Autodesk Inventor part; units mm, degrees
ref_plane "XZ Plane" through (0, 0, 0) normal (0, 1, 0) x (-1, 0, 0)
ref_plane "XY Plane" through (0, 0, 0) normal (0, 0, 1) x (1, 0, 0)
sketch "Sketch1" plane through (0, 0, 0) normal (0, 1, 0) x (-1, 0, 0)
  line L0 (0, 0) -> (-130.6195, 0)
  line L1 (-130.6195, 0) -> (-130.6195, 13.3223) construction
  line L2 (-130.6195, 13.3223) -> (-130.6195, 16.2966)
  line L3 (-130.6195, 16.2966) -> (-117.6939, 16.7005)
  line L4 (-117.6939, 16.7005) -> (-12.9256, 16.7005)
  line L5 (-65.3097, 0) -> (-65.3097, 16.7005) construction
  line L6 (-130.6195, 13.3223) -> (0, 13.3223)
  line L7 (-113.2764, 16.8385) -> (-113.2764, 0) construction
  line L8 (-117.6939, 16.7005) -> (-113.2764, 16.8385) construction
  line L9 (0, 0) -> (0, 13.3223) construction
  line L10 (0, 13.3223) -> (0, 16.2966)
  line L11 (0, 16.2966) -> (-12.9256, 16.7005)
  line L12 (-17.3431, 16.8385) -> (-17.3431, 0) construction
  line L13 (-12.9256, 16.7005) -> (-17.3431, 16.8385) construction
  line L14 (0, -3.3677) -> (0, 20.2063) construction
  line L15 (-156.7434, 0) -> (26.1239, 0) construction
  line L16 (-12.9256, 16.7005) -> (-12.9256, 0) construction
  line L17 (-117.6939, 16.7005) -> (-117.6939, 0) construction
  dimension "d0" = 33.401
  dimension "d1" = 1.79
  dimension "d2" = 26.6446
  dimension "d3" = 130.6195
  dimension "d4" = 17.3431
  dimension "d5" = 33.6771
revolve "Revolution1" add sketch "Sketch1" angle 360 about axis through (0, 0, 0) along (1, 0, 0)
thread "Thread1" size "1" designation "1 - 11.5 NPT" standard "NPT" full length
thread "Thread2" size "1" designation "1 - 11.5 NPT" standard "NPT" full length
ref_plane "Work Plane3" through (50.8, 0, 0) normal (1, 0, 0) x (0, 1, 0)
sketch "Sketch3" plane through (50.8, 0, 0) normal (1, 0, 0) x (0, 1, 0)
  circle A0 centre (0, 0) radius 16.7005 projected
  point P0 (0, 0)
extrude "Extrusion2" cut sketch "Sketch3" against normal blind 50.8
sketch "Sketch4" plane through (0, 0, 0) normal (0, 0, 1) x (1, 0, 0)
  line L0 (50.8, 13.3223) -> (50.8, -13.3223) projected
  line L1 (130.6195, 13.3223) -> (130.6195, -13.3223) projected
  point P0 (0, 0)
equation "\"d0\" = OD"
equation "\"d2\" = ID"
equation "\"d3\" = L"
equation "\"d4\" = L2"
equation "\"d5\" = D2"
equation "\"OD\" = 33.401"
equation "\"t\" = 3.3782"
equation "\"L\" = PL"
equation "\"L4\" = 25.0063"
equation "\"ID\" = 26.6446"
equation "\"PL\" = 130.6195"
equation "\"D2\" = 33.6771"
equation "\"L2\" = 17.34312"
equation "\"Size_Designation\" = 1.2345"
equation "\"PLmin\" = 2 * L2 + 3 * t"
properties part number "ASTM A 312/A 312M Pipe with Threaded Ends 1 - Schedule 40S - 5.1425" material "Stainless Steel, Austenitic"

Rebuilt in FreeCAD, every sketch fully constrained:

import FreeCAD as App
import Part
import Sketcher
from FreeCAD import Vector
Q = App.Units.Quantity

doc = App.newDocument("Part")
body = doc.addObject("PartDesign::Body", "Body")

# Sketch on XZ plane
sketch1 = doc.addObject("Sketcher::SketchObject", "Sketch")
body.addObject(sketch1)
sketch1.AttachmentSupport = (doc.XZ_Plane, [""])
sketch1.MapMode = "FlatFace"
sketch1.addGeometry([
    Part.LineSegment(Vector(130.6195, 16.2966, 0), Vector(130.6195, 13.3223, 0)),  # 0
    Part.LineSegment(Vector(130.6195, 13.3223, 0), Vector(0, 13.3223, 0)),  # 1
    Part.LineSegment(Vector(0, 13.3223, 0), Vector(0, 16.2966, 0)),  # 2
    Part.LineSegment(Vector(0, 16.2966, 0), Vector(12.9256, 16.7005, 0)),  # 3
    Part.LineSegment(Vector(12.9256, 16.7005, 0), Vector(117.6939, 16.7005, 0)),  # 4
    Part.LineSegment(Vector(117.6939, 16.7005, 0), Vector(130.6195, 16.2966, 0)),  # 5
], False)
sketch1.addConstraint([
    Sketcher.Constraint("Coincident", 0, 2, 1, 1),
    Sketcher.Constraint("Coincident", 1, 2, 2, 1),
    Sketcher.Constraint("Coincident", 2, 2, 3, 1),
    Sketcher.Constraint("Coincident", 3, 2, 4, 1),
    Sketcher.Constraint("Coincident", 4, 2, 5, 1),
    Sketcher.Constraint("Coincident", 5, 2, 0, 1),
    Sketcher.Constraint("Vertical", 0),
    Sketcher.Constraint("Horizontal", 1),
    Sketcher.Constraint("Vertical", 2),
    Sketcher.Constraint("Horizontal", 4),
    Sketcher.Constraint("PointOnObject", 1, 2, -2),
    Sketcher.Constraint("Horizontal", 2, 2, 5, 2),
    Sketcher.Constraint("Equal", 3, 5),
    Sketcher.Constraint("Angle", 3, Q("1.7898 deg")),
    Sketcher.Constraint("DistanceX", 1, 2, 1, 1, Q("5.1425 in")),
    Sketcher.Constraint("DistanceY", 0, 2, 0, 1, Q("0.1171 in")),
    Sketcher.Constraint("DistanceY", 1, 2, 3, 2, Q("0.133 in")),
    Sketcher.Constraint("DistanceY", -1, 1, 0, 2, Q("0.5245 in")),
])
revolution = doc.addObject("PartDesign::Revolution", "Revolution")
body.addObject(revolution)
revolution.Profile = sketch1
revolution.ReferenceAxis = (sketch1, ["H_Axis"])
revolution.Angle = 360

# Sketch on YZ plane
sketch2 = doc.addObject("Sketcher::SketchObject", "Sketch001")
body.addObject(sketch2)
sketch2.AttachmentSupport = (doc.YZ_Plane, [""])
sketch2.MapMode = "FlatFace"
sketch2.AttachmentOffset = App.Placement(Vector(0, 0, 2 * 25.4), App.Rotation())
sketch2.addGeometry(Part.Circle(Vector(0, 0, 0), Vector(0, 0, 1), 16.7005), False)
sketch2.addConstraint([
    Sketcher.Constraint("Coincident", 0, 3, -1, 1),
    Sketcher.Constraint("Diameter", 0, Q("1.315 in")),
])
pocket1 = doc.addObject("PartDesign::Pocket", "Pocket")
body.addObject(pocket1)
pocket1.Profile = sketch2
pocket1.Length = Q("2 in")

doc.recompute()
